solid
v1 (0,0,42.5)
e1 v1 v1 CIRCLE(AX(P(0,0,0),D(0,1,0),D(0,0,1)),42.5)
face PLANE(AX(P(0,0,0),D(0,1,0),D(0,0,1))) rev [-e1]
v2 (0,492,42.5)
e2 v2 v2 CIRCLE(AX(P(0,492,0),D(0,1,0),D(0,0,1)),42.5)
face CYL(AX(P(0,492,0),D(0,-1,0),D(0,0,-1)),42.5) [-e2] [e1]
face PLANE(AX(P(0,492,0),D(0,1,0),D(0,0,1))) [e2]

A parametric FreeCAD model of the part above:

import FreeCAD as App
import Part
import Sketcher
from FreeCAD import Vector
Q = App.Units.Quantity

doc = App.newDocument("Part")
body = doc.addObject("PartDesign::Body", "Body")

# Sketch on XZ plane
sketch1 = doc.addObject("Sketcher::SketchObject", "Sketch")
body.addObject(sketch1)
sketch1.AttachmentSupport = (doc.XZ_Plane, [""])
sketch1.MapMode = "FlatFace"
sketch1.addGeometry(Part.Circle(Vector(0, 0, 0), Vector(0, 0, 1), 42.5), False)
sketch1.addConstraint(Sketcher.Constraint("Coincident", 0, 3, -1, 1))
sketch1.addConstraint(Sketcher.Constraint("Diameter", 0, Q("85 mm")))
pad1 = doc.addObject("PartDesign::Pad", "Pad")
body.addObject(pad1)
pad1.Profile = sketch1
pad1.Length = 492
pad1.Reversed = True

doc.recompute()
